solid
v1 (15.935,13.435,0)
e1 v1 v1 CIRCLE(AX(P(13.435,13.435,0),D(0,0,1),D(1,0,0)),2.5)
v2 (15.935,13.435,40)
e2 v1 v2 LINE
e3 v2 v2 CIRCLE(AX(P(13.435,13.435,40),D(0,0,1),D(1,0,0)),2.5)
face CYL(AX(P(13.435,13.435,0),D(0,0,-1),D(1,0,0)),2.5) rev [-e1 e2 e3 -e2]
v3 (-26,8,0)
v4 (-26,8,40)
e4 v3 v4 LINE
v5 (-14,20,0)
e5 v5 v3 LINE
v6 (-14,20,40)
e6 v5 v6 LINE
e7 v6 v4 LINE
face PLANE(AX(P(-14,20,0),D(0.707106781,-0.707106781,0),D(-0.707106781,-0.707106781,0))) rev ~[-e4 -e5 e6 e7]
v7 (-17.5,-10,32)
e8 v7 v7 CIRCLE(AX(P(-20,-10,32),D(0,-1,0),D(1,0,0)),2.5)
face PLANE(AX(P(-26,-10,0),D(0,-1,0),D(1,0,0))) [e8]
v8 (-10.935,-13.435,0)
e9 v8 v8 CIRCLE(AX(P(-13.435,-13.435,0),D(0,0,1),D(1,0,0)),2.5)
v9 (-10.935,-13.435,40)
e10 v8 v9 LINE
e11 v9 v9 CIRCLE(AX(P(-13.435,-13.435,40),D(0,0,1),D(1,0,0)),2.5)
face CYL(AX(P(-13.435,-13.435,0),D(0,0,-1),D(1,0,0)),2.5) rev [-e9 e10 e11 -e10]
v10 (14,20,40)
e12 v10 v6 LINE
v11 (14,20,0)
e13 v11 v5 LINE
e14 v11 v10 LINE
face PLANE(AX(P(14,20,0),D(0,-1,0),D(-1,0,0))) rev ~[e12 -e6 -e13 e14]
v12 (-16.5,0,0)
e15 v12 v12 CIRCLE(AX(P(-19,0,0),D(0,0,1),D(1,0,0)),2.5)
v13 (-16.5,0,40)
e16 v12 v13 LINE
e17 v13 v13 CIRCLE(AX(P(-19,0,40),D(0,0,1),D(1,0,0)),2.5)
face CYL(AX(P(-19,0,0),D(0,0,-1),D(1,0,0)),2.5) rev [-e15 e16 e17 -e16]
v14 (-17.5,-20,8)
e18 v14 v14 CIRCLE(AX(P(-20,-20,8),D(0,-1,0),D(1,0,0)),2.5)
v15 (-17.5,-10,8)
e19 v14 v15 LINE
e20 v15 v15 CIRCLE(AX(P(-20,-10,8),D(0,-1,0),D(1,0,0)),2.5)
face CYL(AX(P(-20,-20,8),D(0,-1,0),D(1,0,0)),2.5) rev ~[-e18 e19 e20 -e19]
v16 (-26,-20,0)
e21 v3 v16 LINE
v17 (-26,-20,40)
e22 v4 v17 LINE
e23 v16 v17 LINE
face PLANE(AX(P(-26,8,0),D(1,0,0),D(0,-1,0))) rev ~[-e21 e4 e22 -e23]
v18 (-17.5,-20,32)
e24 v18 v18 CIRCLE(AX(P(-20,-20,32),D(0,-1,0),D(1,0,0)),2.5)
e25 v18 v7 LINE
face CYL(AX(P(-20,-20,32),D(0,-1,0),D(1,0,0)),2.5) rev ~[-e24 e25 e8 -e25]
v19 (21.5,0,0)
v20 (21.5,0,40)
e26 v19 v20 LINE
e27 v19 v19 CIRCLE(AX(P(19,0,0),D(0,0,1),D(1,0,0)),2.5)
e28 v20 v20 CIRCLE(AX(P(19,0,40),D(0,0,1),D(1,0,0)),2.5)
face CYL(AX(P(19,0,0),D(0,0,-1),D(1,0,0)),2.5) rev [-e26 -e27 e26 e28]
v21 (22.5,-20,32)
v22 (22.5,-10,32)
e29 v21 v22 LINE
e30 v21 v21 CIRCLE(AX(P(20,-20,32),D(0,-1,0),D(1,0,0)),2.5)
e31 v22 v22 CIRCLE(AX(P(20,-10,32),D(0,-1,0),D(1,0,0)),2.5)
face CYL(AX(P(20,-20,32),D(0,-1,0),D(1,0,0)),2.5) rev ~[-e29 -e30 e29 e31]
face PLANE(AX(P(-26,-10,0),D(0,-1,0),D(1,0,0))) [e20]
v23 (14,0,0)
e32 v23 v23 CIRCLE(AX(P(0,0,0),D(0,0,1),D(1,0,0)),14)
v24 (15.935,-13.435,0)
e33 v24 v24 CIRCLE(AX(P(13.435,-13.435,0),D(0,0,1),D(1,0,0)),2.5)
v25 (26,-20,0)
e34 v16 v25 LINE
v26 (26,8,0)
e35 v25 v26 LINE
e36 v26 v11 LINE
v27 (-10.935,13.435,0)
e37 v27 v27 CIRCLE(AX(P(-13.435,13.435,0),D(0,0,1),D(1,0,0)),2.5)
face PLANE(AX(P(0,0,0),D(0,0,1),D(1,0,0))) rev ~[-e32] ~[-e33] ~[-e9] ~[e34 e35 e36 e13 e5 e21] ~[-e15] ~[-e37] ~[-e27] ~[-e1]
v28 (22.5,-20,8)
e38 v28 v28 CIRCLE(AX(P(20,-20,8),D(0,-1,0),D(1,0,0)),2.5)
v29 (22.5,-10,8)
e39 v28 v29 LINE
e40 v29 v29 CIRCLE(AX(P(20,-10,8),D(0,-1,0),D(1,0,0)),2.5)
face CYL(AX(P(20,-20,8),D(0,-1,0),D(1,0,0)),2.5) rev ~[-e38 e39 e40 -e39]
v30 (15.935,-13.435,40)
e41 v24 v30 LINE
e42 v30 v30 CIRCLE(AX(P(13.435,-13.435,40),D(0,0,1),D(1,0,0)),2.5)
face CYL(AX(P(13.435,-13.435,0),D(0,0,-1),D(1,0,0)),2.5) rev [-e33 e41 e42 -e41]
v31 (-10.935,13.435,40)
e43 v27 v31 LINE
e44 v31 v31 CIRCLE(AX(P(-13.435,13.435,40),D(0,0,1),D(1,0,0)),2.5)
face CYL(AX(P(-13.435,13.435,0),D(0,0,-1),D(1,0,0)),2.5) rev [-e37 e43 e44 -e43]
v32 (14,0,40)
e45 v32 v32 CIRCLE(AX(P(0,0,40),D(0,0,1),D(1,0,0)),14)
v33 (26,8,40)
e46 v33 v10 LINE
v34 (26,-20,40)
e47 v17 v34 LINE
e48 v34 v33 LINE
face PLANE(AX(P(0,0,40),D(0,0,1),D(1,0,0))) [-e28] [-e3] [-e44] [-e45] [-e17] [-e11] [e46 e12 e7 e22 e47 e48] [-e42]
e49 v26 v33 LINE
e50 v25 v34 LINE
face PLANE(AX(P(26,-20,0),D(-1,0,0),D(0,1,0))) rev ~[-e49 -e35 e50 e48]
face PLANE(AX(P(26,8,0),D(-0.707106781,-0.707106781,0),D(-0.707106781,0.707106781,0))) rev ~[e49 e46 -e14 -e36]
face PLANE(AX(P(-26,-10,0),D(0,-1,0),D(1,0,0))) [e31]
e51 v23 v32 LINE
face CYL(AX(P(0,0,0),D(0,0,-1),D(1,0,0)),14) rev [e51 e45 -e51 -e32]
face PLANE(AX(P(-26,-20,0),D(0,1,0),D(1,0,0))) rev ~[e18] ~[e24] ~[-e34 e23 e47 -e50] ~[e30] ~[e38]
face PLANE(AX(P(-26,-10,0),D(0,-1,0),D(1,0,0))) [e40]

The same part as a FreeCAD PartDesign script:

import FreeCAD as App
import Part
import Sketcher
from FreeCAD import Vector

doc = App.newDocument("Part")
body = doc.addObject("PartDesign::Body", "Body")

sketch1 = body.newObject("Sketcher::SketchObject", "Sketch")
sketch1.AttachmentSupport = (doc.getObject("XY_Plane"), [""])
sketch1.MapMode = "FlatFace"
sketch1.addGeometry([
    Part.LineSegment(Vector(-26, 8, 0), Vector(-26, -20, 0)),
    Part.LineSegment(Vector(-26, -20, 0), Vector(26, -20, 0)),
    Part.LineSegment(Vector(26, -20, 0), Vector(26, 8, 0)),
    Part.LineSegment(Vector(26, 8, 0), Vector(14, 20, 0)),
    Part.LineSegment(Vector(14, 20, 0), Vector(-14, 20, 0)),
    Part.LineSegment(Vector(-14, 20, 0), Vector(-26, 8, 0)),
    Part.Circle(Vector(-13.4, -13.4, 0), Vector(0, 0, 1), 2.5),
    Part.Circle(Vector(13.4, -13.4, 0), Vector(0, 0, 1), 2.5),
    Part.Circle(Vector(-19, 0, 0), Vector(0, 0, 1), 2.5),
    Part.Circle(Vector(-13.4, 13.4, 0), Vector(0, 0, 1), 2.5),
    Part.Circle(Vector(0, 0, 0), Vector(0, 0, 1), 14),
    Part.Circle(Vector(19, 0, 0), Vector(0, 0, 1), 2.5),
    Part.Circle(Vector(13.4, 13.4, 0), Vector(0, 0, 1), 2.5),
], False)
sketch1.addConstraint([
    Sketcher.Constraint("Coincident", 0, 2, 1, 1),
    Sketcher.Constraint("Coincident", 1, 2, 2, 1),
    Sketcher.Constraint("Coincident", 2, 2, 3, 1),
    Sketcher.Constraint("Coincident", 3, 2, 4, 1),
    Sketcher.Constraint("Coincident", 4, 2, 5, 1),
    Sketcher.Constraint("Coincident", 5, 2, 0, 1),
    Sketcher.Constraint("Vertical", 0),
    Sketcher.Constraint("Horizontal", 1),
    Sketcher.Constraint("Vertical", 2),
    Sketcher.Constraint("Horizontal", 4),
    Sketcher.Constraint("Coincident", 10, 3, -1, 1),
    Sketcher.Constraint("Equal", 6, 7),
    Sketcher.Constraint("Equal", 7, 8),
    Sketcher.Constraint("Equal", 8, 9),
    Sketcher.Constraint("Equal", 9, 11),
    Sketcher.Constraint("Equal", 11, 12),
    Sketcher.Constraint("Symmetric", 7, 3, 9, 3, -1, 1),
    Sketcher.Constraint("Symmetric", 8, 3, 11, 3, -1, 1),
    Sketcher.Constraint("Symmetric", 6, 3, 12, 3, -1, 1),
    Sketcher.Constraint("Symmetric", 6, 3, 7, 3, -2),
    Sketcher.Constraint("Symmetric", 2, 2, 5, 2, -2),
    Sketcher.Constraint("PointOnObject", 8, 3, -1),
    Sketcher.Constraint("Perpendicular", 3, 5),
    Sketcher.Constraint("Equal", 4, 0),
    Sketcher.Constraint("Equal", 3, 5),
    Sketcher.Constraint("Diameter", 6, 5.0),
    Sketcher.Constraint("Diameter", 10, 28.0),
    Sketcher.Constraint("DistanceX", 1, 1, 1, 2, 52.0),
    Sketcher.Constraint("DistanceX", 4, 2, 4, 1, 28.0),
    Sketcher.Constraint("DistanceY", 0, 2, -1, 1, 20.0),
    Sketcher.Constraint("DistanceX", 8, 3, 11, 3, 38.0),
    Sketcher.Constraint("DistanceX", 6, 3, 7, 3, 26.87),
    Sketcher.Constraint("DistanceY", 6, 3, 9, 3, 26.87),
])
pad1 = body.newObject("PartDesign::Pad", "Pad")
pad1.Profile = sketch1
pad1.Length = 40

sketch2 = body.newObject("Sketcher::SketchObject", "Sketch001")
sketch2.AttachmentSupport = (doc.getObject("XZ_Plane"), [""])
sketch2.MapMode = "FlatFace"
sketch2.AttachmentOffset = App.Placement(Vector(0, 0, 20), App.Rotation())
sketch2.addGeometry([
    Part.Circle(Vector(-20, 32, 0), Vector(0, 0, 1), 2.5),
    Part.Circle(Vector(20, 32, 0), Vector(0, 0, 1), 2.5),
    Part.Circle(Vector(-20, 8, 0), Vector(0, 0, 1), 2.5),
    Part.Circle(Vector(20, 8, 0), Vector(0, 0, 1), 2.5),
], False)
sketch2.addConstraint([
    Sketcher.Constraint("Equal", 0, 1),
    Sketcher.Constraint("Equal", 1, 2),
    Sketcher.Constraint("Equal", 2, 3),
    Sketcher.Constraint("Symmetric", 0, 3, 1, 3, -2),
    Sketcher.Constraint("Symmetric", 2, 3, 3, 3, -2),
    Sketcher.Constraint("Vertical", 0, 3, 2, 3),
    Sketcher.Constraint("Diameter", 0, 5.0),
    Sketcher.Constraint("DistanceX", 0, 3, 1, 3, 40.0),
    Sketcher.Constraint("DistanceY", 2, 3, 0, 3, 24.0),
    Sketcher.Constraint("DistanceY", -1, 1, 0, 3, 32.0),
])
pocket1 = body.newObject("PartDesign::Pocket", "Pocket")
pocket1.Profile = sketch2
pocket1.Length = 10

doc.recompute()
